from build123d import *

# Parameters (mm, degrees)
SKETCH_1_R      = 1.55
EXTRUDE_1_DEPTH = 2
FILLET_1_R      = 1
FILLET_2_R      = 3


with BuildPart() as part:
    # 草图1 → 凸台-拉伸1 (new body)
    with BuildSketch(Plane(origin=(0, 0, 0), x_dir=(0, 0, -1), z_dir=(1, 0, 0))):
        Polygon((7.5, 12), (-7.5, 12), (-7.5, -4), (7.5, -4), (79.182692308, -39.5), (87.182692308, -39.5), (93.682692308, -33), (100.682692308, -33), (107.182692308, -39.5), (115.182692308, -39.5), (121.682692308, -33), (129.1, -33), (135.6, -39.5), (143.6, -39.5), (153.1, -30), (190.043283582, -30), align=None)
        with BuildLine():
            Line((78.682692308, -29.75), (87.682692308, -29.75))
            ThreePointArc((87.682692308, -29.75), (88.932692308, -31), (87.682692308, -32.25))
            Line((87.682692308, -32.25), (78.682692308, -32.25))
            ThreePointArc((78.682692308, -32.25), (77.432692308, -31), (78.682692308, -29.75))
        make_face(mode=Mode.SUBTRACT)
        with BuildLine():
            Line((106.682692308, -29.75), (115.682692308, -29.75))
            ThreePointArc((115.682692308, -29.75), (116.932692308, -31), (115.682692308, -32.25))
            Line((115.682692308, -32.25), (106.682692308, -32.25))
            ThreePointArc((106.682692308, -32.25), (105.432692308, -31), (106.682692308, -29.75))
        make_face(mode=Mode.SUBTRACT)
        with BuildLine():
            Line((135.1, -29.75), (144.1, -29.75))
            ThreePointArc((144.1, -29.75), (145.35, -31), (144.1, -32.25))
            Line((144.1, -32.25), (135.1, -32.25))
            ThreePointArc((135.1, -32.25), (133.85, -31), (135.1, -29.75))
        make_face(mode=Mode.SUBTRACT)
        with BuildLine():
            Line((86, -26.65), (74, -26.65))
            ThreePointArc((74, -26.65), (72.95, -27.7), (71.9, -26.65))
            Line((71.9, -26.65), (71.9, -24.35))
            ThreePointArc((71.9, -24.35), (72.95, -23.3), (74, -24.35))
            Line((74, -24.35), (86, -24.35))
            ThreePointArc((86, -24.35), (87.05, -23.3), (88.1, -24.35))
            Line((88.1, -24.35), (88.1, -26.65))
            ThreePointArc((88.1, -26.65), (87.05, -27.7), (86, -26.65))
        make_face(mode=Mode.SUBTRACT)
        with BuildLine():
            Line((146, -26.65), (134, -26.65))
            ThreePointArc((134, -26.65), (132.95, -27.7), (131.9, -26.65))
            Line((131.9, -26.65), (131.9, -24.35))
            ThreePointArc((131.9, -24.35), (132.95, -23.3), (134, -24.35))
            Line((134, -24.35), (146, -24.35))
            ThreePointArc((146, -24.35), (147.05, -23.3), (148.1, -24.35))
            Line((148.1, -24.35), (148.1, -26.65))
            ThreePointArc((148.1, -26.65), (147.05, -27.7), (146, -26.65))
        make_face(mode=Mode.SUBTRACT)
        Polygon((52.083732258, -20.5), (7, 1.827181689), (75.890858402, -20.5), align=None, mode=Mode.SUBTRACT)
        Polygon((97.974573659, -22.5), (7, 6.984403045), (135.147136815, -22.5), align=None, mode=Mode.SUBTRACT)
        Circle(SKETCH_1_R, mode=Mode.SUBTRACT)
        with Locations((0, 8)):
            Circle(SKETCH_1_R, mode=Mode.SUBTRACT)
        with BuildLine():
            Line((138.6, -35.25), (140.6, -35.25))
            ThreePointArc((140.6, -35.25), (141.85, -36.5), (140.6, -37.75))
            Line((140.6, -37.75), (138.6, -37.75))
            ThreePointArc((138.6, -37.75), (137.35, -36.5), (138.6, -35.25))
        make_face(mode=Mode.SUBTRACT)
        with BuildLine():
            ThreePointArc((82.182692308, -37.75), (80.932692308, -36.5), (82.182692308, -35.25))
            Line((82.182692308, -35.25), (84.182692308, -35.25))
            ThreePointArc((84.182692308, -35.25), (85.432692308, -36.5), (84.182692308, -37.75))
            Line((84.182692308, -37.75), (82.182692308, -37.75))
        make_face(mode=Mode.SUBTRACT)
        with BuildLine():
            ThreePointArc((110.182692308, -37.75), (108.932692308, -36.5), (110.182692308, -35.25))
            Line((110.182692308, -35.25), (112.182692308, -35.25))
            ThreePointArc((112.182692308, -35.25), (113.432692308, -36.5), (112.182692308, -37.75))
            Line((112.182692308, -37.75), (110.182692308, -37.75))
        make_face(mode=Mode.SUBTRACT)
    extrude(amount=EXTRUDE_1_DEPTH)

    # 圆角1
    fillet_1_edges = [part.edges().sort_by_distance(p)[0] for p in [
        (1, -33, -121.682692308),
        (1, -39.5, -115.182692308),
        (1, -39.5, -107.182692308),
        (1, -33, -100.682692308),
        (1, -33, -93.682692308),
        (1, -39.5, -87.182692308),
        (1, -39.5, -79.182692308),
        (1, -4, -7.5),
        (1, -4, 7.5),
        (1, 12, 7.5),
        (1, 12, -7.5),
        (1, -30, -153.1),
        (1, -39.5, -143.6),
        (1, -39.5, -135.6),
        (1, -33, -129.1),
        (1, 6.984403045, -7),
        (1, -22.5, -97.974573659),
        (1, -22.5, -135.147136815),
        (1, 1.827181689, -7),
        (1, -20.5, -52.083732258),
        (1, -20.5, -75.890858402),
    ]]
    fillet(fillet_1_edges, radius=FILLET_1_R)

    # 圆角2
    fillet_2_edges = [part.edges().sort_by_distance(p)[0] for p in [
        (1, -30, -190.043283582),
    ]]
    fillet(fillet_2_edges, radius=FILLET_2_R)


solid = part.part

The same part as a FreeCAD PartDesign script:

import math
import FreeCAD as App
import Part
import Sketcher
from FreeCAD import Vector


def edges_at(feature, points):
    """Names of the edges that pass closest to the given points."""
    edges = feature.Shape.Edges
    near = lambda p: min(range(len(edges)), key=lambda i: edges[i].distToShape(Part.Vertex(*p))[0])
    return sorted({f"Edge{near(p) + 1}" for p in points})

doc = App.newDocument("Part")
body = doc.addObject("PartDesign::Body", "Body")

# Sketch on YZ plane
sketch1 = doc.addObject("Sketcher::SketchObject", "Sketch")
body.addObject(sketch1)
sketch1.AttachmentSupport = (doc.YZ_Plane, [""])
sketch1.MapMode = "FlatFace"
sketch1.addGeometry(Part.LineSegment(Vector(12, -7.5, 0), Vector(12, 7.5, 0)), False)
sketch1.addGeometry(Part.LineSegment(Vector(12, 7.5, 0), Vector(-4, 7.5, 0)), False)
sketch1.addGeometry(Part.LineSegment(Vector(-4, 7.5, 0), Vector(-4, -7.5, 0)), False)
sketch1.addGeometry(Part.LineSegment(Vector(-4, -7.5, 0), Vector(-39.5, -79.2, 0)), False)
sketch1.addGeometry(Part.LineSegment(Vector(-39.5, -79.2, 0), Vector(-39.5, -87.2, 0)), False)
sketch1.addGeometry(Part.LineSegment(Vector(-39.5, -87.2, 0), Vector(-33, -93.7, 0)), False)
sketch1.addGeometry(Part.LineSegment(Vector(-33, -93.7, 0), Vector(-33, -100.7, 0)), False)
sketch1.addGeometry(Part.LineSegment(Vector(-33, -100.7, 0), Vector(-39.5, -107.2, 0)), False)
sketch1.addGeometry(Part.LineSegment(Vector(-39.5, -107.2, 0), Vector(-39.5, -115.2, 0)), False)
sketch1.addGeometry(Part.LineSegment(Vector(-39.5, -115.2, 0), Vector(-33, -121.7, 0)), False)
sketch1.addGeometry(Part.LineSegment(Vector(-33, -121.7, 0), Vector(-33, -129.1, 0)), False)
sketch1.addGeometry(Part.LineSegment(Vector(-33, -129.1, 0), Vector(-39.5, -135.6, 0)), False)
sketch1.addGeometry(Part.LineSegment(Vector(-39.5, -135.6, 0), Vector(-39.5, -143.6, 0)), False)
sketch1.addGeometry(Part.LineSegment(Vector(-39.5, -143.6, 0), Vector(-30, -153.1, 0)), False)
sketch1.addGeometry(Part.LineSegment(Vector(-30, -153.1, 0), Vector(-30, -190, 0)), False)
sketch1.addGeometry(Part.LineSegment(Vector(-30, -190, 0), Vector(12, -7.5, 0)), False)
sketch1.addGeometry(Part.LineSegment(Vector(-37.8, -84.2, 0), Vector(-37.8, -82.2, 0)), False)
sketch1.addGeometry(Part.ArcOfCircle(Part.Circle(Vector(-36.5, -82.2, 0), Vector(0, 0, 1), 1.2), math.radians(0), math.radians(180)), False)
sketch1.addGeometry(Part.LineSegment(Vector(-35.2, -82.2, 0), Vector(-35.2, -84.2, 0)), False)
sketch1.addGeometry(Part.ArcOfCircle(Part.Circle(Vector(-36.5, -84.2, 0), Vector(0, 0, 1), 1.2), math.radians(180), math.radians(360)), False)
sketch1.addGeometry(Part.ArcOfCircle(Part.Circle(Vector(-31, -78.7, 0), Vector(0, 0, 1), 1.2), math.radians(0), math.radians(180)), False)
sketch1.addGeometry(Part.LineSegment(Vector(-29.8, -78.7, 0), Vector(-29.8, -87.7, 0)), False)
sketch1.addGeometry(Part.ArcOfCircle(Part.Circle(Vector(-31, -87.7, 0), Vector(0, 0, 1), 1.2), math.radians(180), math.radians(360)), False)
sketch1.addGeometry(Part.LineSegment(Vector(-32.2, -87.7, 0), Vector(-32.2, -78.7, 0)), False)
sketch1.addGeometry(Part.LineSegment(Vector(-37.8, -112.2, 0), Vector(-37.8, -110.2, 0)), False)
sketch1.addGeometry(Part.ArcOfCircle(Part.Circle(Vector(-36.5, -110.2, 0), Vector(0, 0, 1), 1.2), math.radians(0), math.radians(180)), False)
sketch1.addGeometry(Part.LineSegment(Vector(-35.2, -110.2, 0), Vector(-35.2, -112.2, 0)), False)
sketch1.addGeometry(Part.ArcOfCircle(Part.Circle(Vector(-36.5, -112.2, 0), Vector(0, 0, 1), 1.2), math.radians(180), math.radians(360)), False)
sketch1.addGeometry(Part.ArcOfCircle(Part.Circle(Vector(-36.5, -138.6, 0), Vector(0, 0, 1), 1.2), math.radians(0), math.radians(180)), False)
sketch1.addGeometry(Part.LineSegment(Vector(-35.2, -138.6, 0), Vector(-35.2, -140.6, 0)), False)
sketch1.addGeometry(Part.ArcOfCircle(Part.Circle(Vector(-36.5, -140.6, 0), Vector(0, 0, 1), 1.2), math.radians(180), math.radians(360)), False)
sketch1.addGeometry(Part.LineSegment(Vector(-37.8, -140.6, 0), Vector(-37.8, -138.6, 0)), False)
sketch1.addGeometry(Part.ArcOfCircle(Part.Circle(Vector(-31, -106.7, 0), Vector(0, 0, 1), 1.2), math.radians(0), math.radians(180)), False)
sketch1.addGeometry(Part.LineSegment(Vector(-29.8, -106.7, 0), Vector(-29.8, -115.7, 0)), False)
sketch1.addGeometry(Part.ArcOfCircle(Part.Circle(Vector(-31, -115.7, 0), Vector(0, 0, 1), 1.2), math.radians(180), math.radians(360)), False)
sketch1.addGeometry(Part.LineSegment(Vector(-32.2, -115.7, 0), Vector(-32.2, -106.7, 0)), False)
sketch1.addGeometry(Part.ArcOfCircle(Part.Circle(Vector(-31, -135.1, 0), Vector(0, 0, 1), 1.2), math.radians(0), math.radians(180)), False)
sketch1.addGeometry(Part.LineSegment(Vector(-29.8, -135.1, 0), Vector(-29.8, -144.1, 0)), False)
sketch1.addGeometry(Part.ArcOfCircle(Part.Circle(Vector(-31, -144.1, 0), Vector(0, 0, 1), 1.2), math.radians(180), math.radians(360)), False)
sketch1.addGeometry(Part.LineSegment(Vector(-32.2, -144.1, 0), Vector(-32.2, -135.1, 0)), False)
sketch1.addGeometry(Part.ArcOfCircle(Part.Circle(Vector(-26.6, -87, 0), Vector(0, 0, 1), 1.1), math.radians(90), math.radians(270)), False)
sketch1.addGeometry(Part.LineSegment(Vector(-26.6, -86, 0), Vector(-26.6, -74, 0)), False)
sketch1.addGeometry(Part.ArcOfCircle(Part.Circle(Vector(-26.6, -73, 0), Vector(0, 0, 1), 1.1), math.radians(90), math.radians(270)), False)
sketch1.addGeometry(Part.LineSegment(Vector(-26.6, -71.9, 0), Vector(-24.4, -71.9, 0)), False)
sketch1.addGeometry(Part.ArcOfCircle(Part.Circle(Vector(-24.4, -73, 0), Vector(0, 0, 1), 1.1), math.radians(-90), math.radians(90)), False)
sketch1.addGeometry(Part.LineSegment(Vector(-24.4, -74, 0), Vector(-24.4, -86, 0)), False)
sketch1.addGeometry(Part.ArcOfCircle(Part.Circle(Vector(-24.4, -87, 0), Vector(0, 0, 1), 1.1), math.radians(-90), math.radians(90)), False)
sketch1.addGeometry(Part.LineSegment(Vector(-24.4, -88.1, 0), Vector(-26.6, -88.1, 0)), False)
sketch1.addGeometry(Part.ArcOfCircle(Part.Circle(Vector(-26.6, -147.1, 0), Vector(0, 0, 1), 1.1), math.radians(90), math.radians(270)), False)
sketch1.addGeometry(Part.LineSegment(Vector(-26.6, -146, 0), Vector(-26.6, -134, 0)), False)
sketch1.addGeometry(Part.ArcOfCircle(Part.Circle(Vector(-26.6, -132.9, 0), Vector(0, 0, 1), 1.1), math.radians(90), math.radians(270)), False)
sketch1.addGeometry(Part.LineSegment(Vector(-26.6, -131.9, 0), Vector(-24.4, -131.9, 0)), False)
sketch1.addGeometry(Part.ArcOfCircle(Part.Circle(Vector(-24.4, -132.9, 0), Vector(0, 0, 1), 1.1), math.radians(-90), math.radians(90)), False)
sketch1.addGeometry(Part.LineSegment(Vector(-24.4, -134, 0), Vector(-24.4, -146, 0)), False)
sketch1.addGeometry(Part.ArcOfCircle(Part.Circle(Vector(-24.4, -147.1, 0), Vector(0, 0, 1), 1.1), math.radians(-90), math.radians(90)), False)
sketch1.addGeometry(Part.LineSegment(Vector(-24.4, -148.1, 0), Vector(-26.6, -148.1, 0)), False)
sketch1.addGeometry(Part.LineSegment(Vector(-20.5, -75.9, 0), Vector(-20.5, -52.1, 0)), False)
sketch1.addGeometry(Part.LineSegment(Vector(-20.5, -52.1, 0), Vector(1.8, -7, 0)), False)
sketch1.addGeometry(Part.LineSegment(Vector(1.8, -7, 0), Vector(-20.5, -75.9, 0)), False)
sketch1.addGeometry(Part.LineSegment(Vector(-22.5, -135.1, 0), Vector(-22.5, -98, 0)), False)
sketch1.addGeometry(Part.LineSegment(Vector(-22.5, -98, 0), Vector(7, -7, 0)), False)
sketch1.addGeometry(Part.LineSegment(Vector(7, -7, 0), Vector(-22.5, -135.1, 0)), False)
sketch1.addGeometry(Part.Circle(Vector(0, 0, 0), Vector(0, 0, 1), 1.6), False)
sketch1.addGeometry(Part.Circle(Vector(8, 0, 0), Vector(0, 0, 1), 1.6), False)
sketch1.addConstraint(Sketcher.Constraint("Coincident", 0, 2, 1, 1))
sketch1.addConstraint(Sketcher.Constraint("Coincident", 1, 2, 2, 1))
sketch1.addConstraint(Sketcher.Constraint("Coincident", 2, 2, 3, 1))
sketch1.addConstraint(Sketcher.Constraint("Coincident", 3, 2, 4, 1))
sketch1.addConstraint(Sketcher.Constraint("Coincident", 4, 2, 5, 1))
sketch1.addConstraint(Sketcher.Constraint("Coincident", 5, 2, 6, 1))
sketch1.addConstraint(Sketcher.Constraint("Coincident", 6, 2, 7, 1))
sketch1.addConstraint(Sketcher.Constraint("Coincident", 7, 2, 8, 1))
sketch1.addConstraint(Sketcher.Constraint("Coincident", 8, 2, 9, 1))
sketch1.addConstraint(Sketcher.Constraint("Coincident", 9, 2, 10, 1))
sketch1.addConstraint(Sketcher.Constraint("Coincident", 10, 2, 11, 1))
sketch1.addConstraint(Sketcher.Constraint("Coincident", 11, 2, 12, 1))
sketch1.addConstraint(Sketcher.Constraint("Coincident", 12, 2, 13, 1))
sketch1.addConstraint(Sketcher.Constraint("Coincident", 13, 2, 14, 1))
sketch1.addConstraint(Sketcher.Constraint("Coincident", 14, 2, 15, 1))
sketch1.addConstraint(Sketcher.Constraint("Coincident", 15, 2, 0, 1))
sketch1.addConstraint(Sketcher.Constraint("Tangent", 16, 2, 17, 2))
sketch1.addConstraint(Sketcher.Constraint("Tangent", 17, 1, 18, 1))
sketch1.addConstraint(Sketcher.Constraint("Tangent", 18, 2, 19, 2))
sketch1.addConstraint(Sketcher.Constraint("Tangent", 19, 1, 16, 1))
sketch1.addConstraint(Sketcher.Constraint("Tangent", 20, 1, 21, 1))
sketch1.addConstraint(Sketcher.Constraint("Tangent", 21, 2, 22, 2))
sketch1.addConstraint(Sketcher.Constraint("Tangent", 22, 1, 23, 1))
sketch1.addConstraint(Sketcher.Constraint("Tangent", 23, 2, 20, 2))
sketch1.addConstraint(Sketcher.Constraint("Tangent", 24, 2, 25, 2))
sketch1.addConstraint(Sketcher.Constraint("Tangent", 25, 1, 26, 1))
sketch1.addConstraint(Sketcher.Constraint("Tangent", 26, 2, 27, 2))
sketch1.addConstraint(Sketcher.Constraint("Tangent", 27, 1, 24, 1))
sketch1.addConstraint(Sketcher.Constraint("Tangent", 28, 1, 29, 1))
sketch1.addConstraint(Sketcher.Constraint("Tangent", 29, 2, 30, 2))
sketch1.addConstraint(Sketcher.Constraint("Tangent", 30, 1, 31, 1))
sketch1.addConstraint(Sketcher.Constraint("Tangent", 31, 2, 28, 2))
sketch1.addConstraint(Sketcher.Constraint("Tangent", 32, 1, 33, 1))
sketch1.addConstraint(Sketcher.Constraint("Tangent", 33, 2, 34, 2))
sketch1.addConstraint(Sketcher.Constraint("Tangent", 34, 1, 35, 1))
sketch1.addConstraint(Sketcher.Constraint("Tangent", 35, 2, 32, 2))
sketch1.addConstraint(Sketcher.Constraint("Tangent", 36, 1, 37, 1))
sketch1.addConstraint(Sketcher.Constraint("Tangent", 37, 2, 38, 2))
sketch1.addConstraint(Sketcher.Constraint("Tangent", 38, 1, 39, 1))
sketch1.addConstraint(Sketcher.Constraint("Tangent", 39, 2, 36, 2))
sketch1.addConstraint(Sketcher.Constraint("Coincident", 40, 1, 41, 1))
sketch1.addConstraint(Sketcher.Constraint("Coincident", 41, 2, 42, 2))
sketch1.addConstraint(Sketcher.Constraint("Tangent", 42, 1, 43, 1))
sketch1.addConstraint(Sketcher.Constraint("Tangent", 43, 2, 44, 2))
sketch1.addConstraint(Sketcher.Constraint("Coincident", 44, 1, 45, 1))
sketch1.addConstraint(Sketcher.Constraint("Coincident", 45, 2, 46, 2))
sketch1.addConstraint(Sketcher.Constraint("Tangent", 46, 1, 47, 1))
sketch1.addConstraint(Sketcher.Constraint("Tangent", 47, 2, 40, 2))
sketch1.addConstraint(Sketcher.Constraint("Coincident", 48, 1, 49, 1))
sketch1.addConstraint(Sketcher.Constraint("Coincident", 49, 2, 50, 2))
sketch1.addConstraint(Sketcher.Constraint("Tangent", 50, 1, 51, 1))
sketch1.addConstraint(Sketcher.Constraint("Tangent", 51, 2, 52, 2))
sketch1.addConstraint(Sketcher.Constraint("Coincident", 52, 1, 53, 1))
sketch1.addConstraint(Sketcher.Constraint("Coincident", 53, 2, 54, 2))
sketch1.addConstraint(Sketcher.Constraint("Tangent", 54, 1, 55, 1))
sketch1.addConstraint(Sketcher.Constraint("Tangent", 55, 2, 48, 2))
sketch1.addConstraint(Sketcher.Constraint("Coincident", 56, 2, 57, 1))
sketch1.addConstraint(Sketcher.Constraint("Coincident", 57, 2, 58, 1))
sketch1.addConstraint(Sketcher.Constraint("Coincident", 58, 2, 56, 1))
sketch1.addConstraint(Sketcher.Constraint("Coincident", 59, 2, 60, 1))
sketch1.addConstraint(Sketcher.Constraint("Coincident", 60, 2, 61, 1))
sketch1.addConstraint(Sketcher.Constraint("Coincident", 61, 2, 59, 1))
sketch1.addConstraint(Sketcher.Constraint("Vertical", 0))
sketch1.addConstraint(Sketcher.Constraint("Horizontal", 1))
sketch1.addConstraint(Sketcher.Constraint("Vertical", 2))
sketch1.addConstraint(Sketcher.Constraint("Vertical", 4))
sketch1.addConstraint(Sketcher.Constraint("Vertical", 6))
sketch1.addConstraint(Sketcher.Constraint("Vertical", 8))
sketch1.addConstraint(Sketcher.Constraint("Vertical", 10))
sketch1.addConstraint(Sketcher.Constraint("Vertical", 12))
sketch1.addConstraint(Sketcher.Constraint("Vertical", 14))
sketch1.addConstraint(Sketcher.Constraint("Vertical", 16))
sketch1.addConstraint(Sketcher.Constraint("Vertical", 18))
sketch1.addConstraint(Sketcher.Constraint("Vertical", 21))
sketch1.addConstraint(Sketcher.Constraint("Vertical", 23))
sketch1.addConstraint(Sketcher.Constraint("Vertical", 24))
sketch1.addConstraint(Sketcher.Constraint("Vertical", 26))
sketch1.addConstraint(Sketcher.Constraint("Vertical", 29))
sketch1.addConstraint(Sketcher.Constraint("Vertical", 31))
sketch1.addConstraint(Sketcher.Constraint("Vertical", 33))
sketch1.addConstraint(Sketcher.Constraint("Vertical", 35))
sketch1.addConstraint(Sketcher.Constraint("Vertical", 37))
sketch1.addConstraint(Sketcher.Constraint("Vertical", 39))
sketch1.addConstraint(Sketcher.Constraint("Vertical", 41))
sketch1.addConstraint(Sketcher.Constraint("Horizontal", 43))
sketch1.addConstraint(Sketcher.Constraint("Vertical", 45))
sketch1.addConstraint(Sketcher.Constraint("Horizontal", 47))
sketch1.addConstraint(Sketcher.Constraint("Vertical", 49))
sketch1.addConstraint(Sketcher.Constraint("Horizontal", 51))
sketch1.addConstraint(Sketcher.Constraint("Vertical", 53))
sketch1.addConstraint(Sketcher.Constraint("Horizontal", 55))
sketch1.addConstraint(Sketcher.Constraint("Vertical", 56))
sketch1.addConstraint(Sketcher.Constraint("Vertical", 59))
sketch1.addConstraint(Sketcher.Constraint("Coincident", 62, 3, -1, 1))
sketch1.addConstraint(Sketcher.Constraint("Equal", 19, 20))
sketch1.addConstraint(Sketcher.Constraint("Equal", 22, 25))
sketch1.addConstraint(Sketcher.Constraint("Equal", 27, 28))
sketch1.addConstraint(Sketcher.Constraint("Equal", 30, 32))
sketch1.addConstraint(Sketcher.Constraint("Equal", 34, 36))
sketch1.addConstraint(Sketcher.Constraint("Equal", 40, 42))
sketch1.addConstraint(Sketcher.Constraint("Equal", 42, 44))
sketch1.addConstraint(Sketcher.Constraint("Equal", 44, 46))
sketch1.addConstraint(Sketcher.Constraint("Equal", 46, 48))
sketch1.addConstraint(Sketcher.Constraint("Equal", 48, 50))
sketch1.addConstraint(Sketcher.Constraint("Equal", 50, 52))
sketch1.addConstraint(Sketcher.Constraint("Equal", 52, 54))
sketch1.addConstraint(Sketcher.Constraint("Equal", 62, 63))
sketch1.addConstraint(Sketcher.Constraint("PointOnObject", 63, 3, -1))
sketch1.addConstraint(Sketcher.Constraint("Perpendicular", 5, 7))
sketch1.addConstraint(Sketcher.Constraint("Perpendicular", 7, 9))
sketch1.addConstraint(Sketcher.Constraint("Perpendicular", 9, 11))
sketch1.addConstraint(Sketcher.Constraint("Perpendicular", 11, 13))
sketch1.addConstraint(Sketcher.Constraint("Parallel", 3, 57))
sketch1.addConstraint(Sketcher.Constraint("Parallel", 58, 60))
sketch1.addConstraint(Sketcher.Constraint("Parallel", 15, 61))
sketch1.addConstraint(Sketcher.Constraint("Horizontal", 2, 2, 15, 2))
sketch1.addConstraint(Sketcher.Constraint("Horizontal", 57, 2, 60, 2))
sketch1.addConstraint(Sketcher.Constraint("Vertical", 19, 3, 25, 3))
sketch1.addConstraint(Sketcher.Constraint("Vertical", 27, 3, 28, 3))
sketch1.addConstraint(Sketcher.Constraint("Vertical", 22, 3, 32, 3))
sketch1.addConstraint(Sketcher.Constraint("Vertical", 34, 3, 36, 3))
sketch1.addConstraint(Sketcher.Constraint("Vertical", 40, 3, 42, 3))
sketch1.addConstraint(Sketcher.Constraint("Vertical", 44, 3, 46, 3))
sketch1.addConstraint(Sketcher.Constraint("Vertical", 42, 3, 48, 3))
sketch1.addConstraint(Sketcher.Constraint("Vertical", 48, 3, 50, 3))
sketch1.addConstraint(Sketcher.Constraint("Vertical", 46, 3, 52, 3))
sketch1.addConstraint(Sketcher.Constraint("Vertical", 52, 3, 54, 3))
sketch1.addConstraint(Sketcher.Constraint("Vertical", 4, 2, 7, 2))
sketch1.addConstraint(Sketcher.Constraint("Vertical", 6, 2, 9, 2))
sketch1.addConstraint(Sketcher.Constraint("Vertical", 8, 2, 11, 2))
sketch1.addConstraint(Sketcher.Constraint("Vertical", 50, 3, 40, 1))
sketch1.addConstraint(Sketcher.Constraint("Vertical", 43, 2, 44, 1))
sketch1.addConstraint(Sketcher.Constraint("Vertical", 47, 2, 48, 1))
sketch1.addConstraint(Sketcher.Constraint("Vertical", 51, 2, 52, 1))
sketch1.addConstraint(Sketcher.Constraint("Equal", 4, 8))
sketch1.addConstraint(Sketcher.Constraint("Equal", 8, 12))
sketch1.addConstraint(Sketcher.Constraint("Equal", 18, 24))
sketch1.addConstraint(Sketcher.Constraint("Equal", 26, 29))
sketch1.addConstraint(Sketcher.Constraint("Equal", 23, 33))
sketch1.addConstraint(Sketcher.Constraint("Equal", 35, 37))
sketch1.addConstraint(Sketcher.Constraint("Equal", 45, 49))
sketch1.addConstraint(Sketcher.Constraint("Equal", 5, 7))
sketch1.addConstraint(Sketcher.Constraint("Diameter", 62, 3.1))
sketch1.addConstraint(Sketcher.Constraint("DistanceX", 1, 2, 1, 1, 16.0))
sketch1.addConstraint(Sketcher.Constraint("DistanceY", 0, 1, 0, 2, 15.0))
sketch1.addConstraint(Sketcher.Constraint("DistanceY", 4, 2, 4, 1, 8.0))
sketch1.addConstraint(Sketcher.Constraint("DistanceY", 6, 2, 6, 1, 7.0))
sketch1.addConstraint(Sketcher.Constraint("DistanceY", 16, 1, 16, 2, 2.0))
sketch1.addConstraint(Sketcher.Constraint("DistanceY", 21, 2, 21, 1, 9.0))
sketch1.addConstraint(Sketcher.Constraint("DistanceY", 41, 1, 41, 2, 12.0))
sketch1.addConstraint(Sketcher.Constraint("Radius", 17, 1.25))
sketch1.addConstraint(Sketcher.Constraint("Radius", 40, 1.05))
sketch1.addConstraint(Sketcher.Constraint("DistanceX", 43, 1, 43, 2, 2.3))
sketch1.addConstraint(Sketcher.Constraint("DistanceX", 20, 3, -1, 1, 31.0))
sketch1.addConstraint(Sketcher.Constraint("DistanceX", -1, 1, 63, 3, 8.0))
sketch1.addConstraint(Sketcher.Constraint("DistanceX", -1, 1, 0, 2, 12.0))
sketch1.addConstraint(Sketcher.Constraint("DistanceX", 5, 2, -1, 1, 33.0))
sketch1.addConstraint(Sketcher.Constraint("DistanceX", 13, 2, -1, 1, 30.0))
sketch1.addConstraint(Sketcher.Constraint("DistanceY", 40, 1, -1, 1, 86.0))
sketch1.addConstraint(Sketcher.Constraint("DistanceY", 48, 1, -1, 1, 146.0))
sketch1.addConstraint(Sketcher.Constraint("DistanceY", 57, 2, -1, 1, 7.0))
sketch1.addConstraint(Sketcher.Constraint("DistanceX", 17, 3, -1, 1, 36.5))
sketch1.addConstraint(Sketcher.Constraint("DistanceY", 28, 3, -1, 1, 138.6))
sketch1.addConstraint(Sketcher.Constraint("DistanceY", 36, 3, -1, 1, 135.1))
sketch1.addConstraint(Sketcher.Constraint("DistanceY", -1, 1, 0, 2, 7.5))
sketch1.addConstraint(Sketcher.Constraint("DistanceX", 3, 2, -1, 1, 39.5))
sketch1.addConstraint(Sketcher.Constraint("DistanceY", 10, 2, -1, 1, 129.1))
sketch1.addConstraint(Sketcher.Constraint("DistanceX", 56, 2, -1, 1, 20.5))
sketch1.addConstraint(Sketcher.Constraint("DistanceX", 59, 2, -1, 1, 22.5))
sketch1.addConstraint(Sketcher.Constraint("DistanceX", 40, 3, -1, 1, 26.65))
sketch1.addConstraint(Sketcher.Constraint("Distance", 57, 50.309502))
sketch1.addConstraint(Sketcher.Constraint("Distance", 58, 72.418599))
sketch1.addConstraint(Sketcher.Constraint("Distance", 60, 95.633169))
sketch1.addConstraint(Sketcher.Constraint("Distance", 61, 131.495318))
sketch1.addConstraint(Sketcher.Constraint("DistanceY", 10, 2, 10, 1, 7.417308))
sketch1.addConstraint(Sketcher.Constraint("DistanceY", 17, 3, -1, 1, 82.182692))
sketch1.addConstraint(Sketcher.Constraint("DistanceY", 20, 3, -1, 1, 78.682692))
sketch1.addConstraint(Sketcher.Constraint("DistanceY", 25, 3, -1, 1, 110.182692))
sketch1.addConstraint(Sketcher.Constraint("DistanceY", 32, 3, -1, 1, 106.682692))
pad1 = doc.addObject("PartDesign::Pad", "Pad")
body.addObject(pad1)
pad1.Profile = sketch1
pad1.Length = 2
doc.recompute()

fillet = doc.addObject("PartDesign::Fillet", "Fillet")
body.addObject(fillet)
fillet.Base = (pad1, edges_at(pad1, [
    (1, -33, -121.683),
    (1, -39.5, -115.183),
    (1, -39.5, -107.183),
    (1, -33, -100.683),
    (1, -33, -93.683),
    (1, -39.5, -87.183),
    (1, -39.5, -79.183),
    (1, -4, -7.5),
    (1, -4, 7.5),
    (1, 12, 7.5),
    (1, 12, -7.5),
    (1, -30, -153.1),
    (1, -39.5, -143.6),
    (1, -39.5, -135.6),
    (1, -33, -129.1),
    (1, 6.984, -7),
    (1, -22.5, -97.975),
    (1, -22.5, -135.147),
    (1, 1.827, -7),
    (1, -20.5, -52.084),
    (1, -20.5, -75.891),
]))
fillet.Radius = 1
doc.recompute()

fillet2 = doc.addObject("PartDesign::Fillet", "Fillet001")
body.addObject(fillet2)
fillet2.Base = (fillet, edges_at(fillet, [(1, -30, -190.043)]))
fillet2.Radius = 3

doc.recompute()
